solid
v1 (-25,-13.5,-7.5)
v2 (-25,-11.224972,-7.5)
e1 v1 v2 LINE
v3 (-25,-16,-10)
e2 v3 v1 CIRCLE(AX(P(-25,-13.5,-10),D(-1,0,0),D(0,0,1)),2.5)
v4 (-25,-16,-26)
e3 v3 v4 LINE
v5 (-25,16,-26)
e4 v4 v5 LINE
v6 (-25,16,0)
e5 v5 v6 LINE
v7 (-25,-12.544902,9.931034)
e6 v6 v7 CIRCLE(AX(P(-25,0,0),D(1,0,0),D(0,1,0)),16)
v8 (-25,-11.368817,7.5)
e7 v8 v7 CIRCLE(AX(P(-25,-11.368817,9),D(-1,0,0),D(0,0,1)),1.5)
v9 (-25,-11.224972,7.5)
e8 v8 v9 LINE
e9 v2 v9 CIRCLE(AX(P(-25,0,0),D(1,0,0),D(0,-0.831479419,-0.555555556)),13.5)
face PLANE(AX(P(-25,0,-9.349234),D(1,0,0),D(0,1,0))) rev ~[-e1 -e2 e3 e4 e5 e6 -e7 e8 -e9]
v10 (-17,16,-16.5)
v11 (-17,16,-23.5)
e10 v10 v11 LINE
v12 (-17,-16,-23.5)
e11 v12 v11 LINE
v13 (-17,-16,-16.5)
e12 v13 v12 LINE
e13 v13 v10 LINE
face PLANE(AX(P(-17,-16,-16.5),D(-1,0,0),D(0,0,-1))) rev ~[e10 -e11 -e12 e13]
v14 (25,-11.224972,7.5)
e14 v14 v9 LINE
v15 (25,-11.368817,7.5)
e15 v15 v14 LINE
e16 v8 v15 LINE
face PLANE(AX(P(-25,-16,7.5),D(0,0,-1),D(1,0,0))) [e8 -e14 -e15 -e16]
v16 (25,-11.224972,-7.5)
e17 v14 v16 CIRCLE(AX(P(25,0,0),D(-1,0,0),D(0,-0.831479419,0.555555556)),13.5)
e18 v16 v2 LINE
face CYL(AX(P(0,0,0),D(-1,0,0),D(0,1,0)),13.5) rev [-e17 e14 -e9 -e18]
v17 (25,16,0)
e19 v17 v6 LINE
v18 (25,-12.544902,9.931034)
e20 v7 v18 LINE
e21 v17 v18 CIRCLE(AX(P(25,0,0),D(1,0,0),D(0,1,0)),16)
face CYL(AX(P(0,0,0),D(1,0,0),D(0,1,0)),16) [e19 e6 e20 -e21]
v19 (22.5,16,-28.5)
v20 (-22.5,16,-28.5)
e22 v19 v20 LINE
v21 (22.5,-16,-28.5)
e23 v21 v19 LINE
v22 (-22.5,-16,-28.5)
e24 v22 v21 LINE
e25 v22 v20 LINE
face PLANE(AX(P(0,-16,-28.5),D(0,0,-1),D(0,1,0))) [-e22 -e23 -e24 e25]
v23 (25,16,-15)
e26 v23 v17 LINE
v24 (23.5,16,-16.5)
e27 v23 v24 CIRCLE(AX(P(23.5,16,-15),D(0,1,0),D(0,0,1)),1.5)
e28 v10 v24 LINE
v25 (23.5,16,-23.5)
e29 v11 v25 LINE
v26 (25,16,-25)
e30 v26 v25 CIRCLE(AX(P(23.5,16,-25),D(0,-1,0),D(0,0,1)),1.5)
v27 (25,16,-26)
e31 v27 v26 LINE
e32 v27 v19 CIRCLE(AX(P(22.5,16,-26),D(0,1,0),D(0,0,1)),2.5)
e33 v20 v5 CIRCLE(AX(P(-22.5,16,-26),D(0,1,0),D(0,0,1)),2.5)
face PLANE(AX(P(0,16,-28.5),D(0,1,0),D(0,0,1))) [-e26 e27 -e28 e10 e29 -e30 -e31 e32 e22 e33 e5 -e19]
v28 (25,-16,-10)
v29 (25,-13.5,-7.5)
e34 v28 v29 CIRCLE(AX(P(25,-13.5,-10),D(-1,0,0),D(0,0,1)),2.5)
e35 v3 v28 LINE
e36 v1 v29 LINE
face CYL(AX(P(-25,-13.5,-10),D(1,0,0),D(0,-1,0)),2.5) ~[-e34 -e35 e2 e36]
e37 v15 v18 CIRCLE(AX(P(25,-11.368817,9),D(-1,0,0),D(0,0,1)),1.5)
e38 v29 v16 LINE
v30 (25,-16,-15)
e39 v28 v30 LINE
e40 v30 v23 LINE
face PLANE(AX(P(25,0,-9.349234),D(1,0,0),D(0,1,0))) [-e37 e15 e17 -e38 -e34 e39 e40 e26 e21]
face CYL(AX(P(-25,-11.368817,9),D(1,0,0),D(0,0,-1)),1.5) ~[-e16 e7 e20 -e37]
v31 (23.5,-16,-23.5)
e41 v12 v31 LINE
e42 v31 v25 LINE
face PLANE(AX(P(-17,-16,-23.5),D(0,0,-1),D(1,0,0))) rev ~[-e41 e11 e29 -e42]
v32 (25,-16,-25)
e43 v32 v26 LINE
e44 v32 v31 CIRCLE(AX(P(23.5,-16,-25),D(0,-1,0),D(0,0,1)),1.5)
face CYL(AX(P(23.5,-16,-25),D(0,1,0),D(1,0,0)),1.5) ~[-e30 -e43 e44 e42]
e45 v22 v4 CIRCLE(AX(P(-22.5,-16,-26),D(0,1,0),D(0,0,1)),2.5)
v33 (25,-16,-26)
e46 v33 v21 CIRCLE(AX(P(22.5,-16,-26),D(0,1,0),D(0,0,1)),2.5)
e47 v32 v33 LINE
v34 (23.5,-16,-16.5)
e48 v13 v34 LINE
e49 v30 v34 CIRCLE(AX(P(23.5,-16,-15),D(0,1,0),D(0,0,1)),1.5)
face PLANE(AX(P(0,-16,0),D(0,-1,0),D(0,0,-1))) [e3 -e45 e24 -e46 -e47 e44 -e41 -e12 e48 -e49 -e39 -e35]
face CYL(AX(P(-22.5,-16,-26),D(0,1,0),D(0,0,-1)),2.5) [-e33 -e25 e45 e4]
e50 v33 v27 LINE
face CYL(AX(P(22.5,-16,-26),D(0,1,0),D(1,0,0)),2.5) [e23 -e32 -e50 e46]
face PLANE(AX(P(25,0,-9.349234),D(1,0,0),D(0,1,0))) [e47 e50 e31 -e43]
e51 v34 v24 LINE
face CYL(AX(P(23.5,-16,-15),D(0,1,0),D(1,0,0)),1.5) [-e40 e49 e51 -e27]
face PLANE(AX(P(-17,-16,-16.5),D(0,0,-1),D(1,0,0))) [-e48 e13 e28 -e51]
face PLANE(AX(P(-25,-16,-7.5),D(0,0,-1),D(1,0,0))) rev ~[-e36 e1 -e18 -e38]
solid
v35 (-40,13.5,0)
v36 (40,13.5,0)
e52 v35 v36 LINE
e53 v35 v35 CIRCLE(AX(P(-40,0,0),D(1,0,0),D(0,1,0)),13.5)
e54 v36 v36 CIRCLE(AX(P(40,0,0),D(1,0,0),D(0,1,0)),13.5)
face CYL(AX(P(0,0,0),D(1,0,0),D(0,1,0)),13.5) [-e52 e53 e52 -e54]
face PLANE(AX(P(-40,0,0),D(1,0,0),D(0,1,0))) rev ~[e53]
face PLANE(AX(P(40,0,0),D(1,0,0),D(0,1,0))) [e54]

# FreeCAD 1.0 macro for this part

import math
import FreeCAD as App
import Part
import Sketcher

V = App.Vector
Q = App.Units.Quantity


def edges_at(feature, points):
    """Names of the edges that pass closest to the given points."""
    edges = feature.Shape.Edges
    near = lambda p: min(range(len(edges)), key=lambda i: edges[i].distToShape(Part.Vertex(*p))[0])
    return sorted({f"Edge{near(p) + 1}" for p in points})

doc = App.newDocument("Part")
body = doc.addObject("PartDesign::Body", "Body")

# Sketch on YZ plane
sketch1 = body.newObject("Sketcher::SketchObject", "Sketch")
sketch1.AttachmentSupport = (doc.getObject("YZ_Plane"), [""])
sketch1.MapMode = "FlatFace"
sketch1.addGeometry(Part.Circle(V(0, 0, 0), V(0, 0, 1), 14), False)
sketch1.addConstraint([
    Sketcher.Constraint("Coincident", 0, 3, -1, 1),
    Sketcher.Constraint("Diameter", 0, Q("27 mm")),
])
pad1 = body.newObject("PartDesign::Pad", "Pad")
pad1.Profile = sketch1
pad1.Length = 80
pad1.Midplane = True
body2 = doc.addObject("PartDesign::Body", "Body001")

# Sketch on YZ plane
sketch2 = body2.newObject("Sketcher::SketchObject", "Sketch001")
sketch2.AttachmentSupport = (doc.getObject("YZ_Plane001"), [""])
sketch2.MapMode = "FlatFace"
sketch2.addGeometry([
    Part.ArcOfCircle(Part.Circle(V(0, 0, 0), V(0, 0, 1), 16), math.radians(0), math.radians(180)),  # 0
    Part.LineSegment(V(-16, 0, 0), V(-16, -28, 0)),  # 1
    Part.LineSegment(V(-16, -28, 0), V(16, -28, 0)),  # 2
    Part.LineSegment(V(16, -28, 0), V(16, 0, 0)),  # 3
    Part.Circle(V(0, 0, 0), V(0, 0, 1), 14),  # 4
], False)
sketch2.addConstraint([
    Sketcher.Constraint("Tangent", 0, 2, 1, 1),
    Sketcher.Constraint("Coincident", 1, 2, 2, 1),
    Sketcher.Constraint("Coincident", 2, 2, 3, 1),
    Sketcher.Constraint("Tangent", 3, 2, 0, 1),
    Sketcher.Constraint("Vertical", 1),
    Sketcher.Constraint("Horizontal", 2),
    Sketcher.Constraint("Vertical", 3),
    Sketcher.Constraint("Coincident", 0, 3, -1, 1),
    Sketcher.Constraint("Coincident", 4, 3, -1, 1),
    Sketcher.Constraint("Diameter", 4, Q("27 mm")),
    Sketcher.Constraint("Radius", 0, Q("16 mm")),
    Sketcher.Constraint("DistanceY", 1, 2, 1, 1, Q("28.5 mm")),
])
pad2 = body2.newObject("PartDesign::Pad", "Pad001")
pad2.Profile = sketch2
pad2.Length = 50
pad2.Midplane = True

# Sketch on XZ plane
sketch3 = body2.newObject("Sketcher::SketchObject", "Sketch002")
sketch3.AttachmentSupport = (doc.getObject("XZ_Plane001"), [""])
sketch3.MapMode = "FlatFace"
sketch3.AttachmentOffset = App.Placement(V(0, 0, 16), App.Rotation())
sketch3.addGeometry([
    Part.LineSegment(V(25, -16, 0), V(-17, -16, 0)),
    Part.LineSegment(V(-17, -16, 0), V(-17, -24, 0)),
    Part.LineSegment(V(-17, -24, 0), V(25, -24, 0)),
    Part.LineSegment(V(25, -24, 0), V(25, -16, 0)),
], False)
sketch3.addConstraint([
    Sketcher.Constraint("Coincident", 0, 2, 1, 1),
    Sketcher.Constraint("Coincident", 1, 2, 2, 1),
    Sketcher.Constraint("Coincident", 2, 2, 3, 1),
    Sketcher.Constraint("Coincident", 3, 2, 0, 1),
    Sketcher.Constraint("Horizontal", 0),
    Sketcher.Constraint("Vertical", 1),
    Sketcher.Constraint("Horizontal", 2),
    Sketcher.Constraint("Vertical", 3),
    Sketcher.Constraint("DistanceX", 0, 2, 0, 1, Q("42 mm")),
    Sketcher.Constraint("DistanceY", 1, 2, 1, 1, Q("7 mm")),
    Sketcher.Constraint("DistanceX", 0, 2, -1, 1, Q("17 mm")),
    Sketcher.Constraint("DistanceY", 0, 2, -1, 1, Q("16.5 mm")),
])
pocket1 = body2.newObject("PartDesign::Pocket", "Pocket")
pocket1.Profile = sketch3
pocket1.Length = 32

# Sketch on XZ plane
sketch4 = body2.newObject("Sketcher::SketchObject", "Sketch003")
sketch4.AttachmentSupport = (doc.getObject("XZ_Plane001"), [""])
sketch4.MapMode = "FlatFace"
sketch4.AttachmentOffset = App.Placement(V(0, 0, 16), App.Rotation())
sketch4.addGeometry([
    Part.LineSegment(V(25, 8, 0), V(-25, 8, 0)),
    Part.LineSegment(V(-25, 8, 0), V(-25, -8, 0)),
    Part.LineSegment(V(-25, -8, 0), V(25, -8, 0)),
    Part.LineSegment(V(25, -8, 0), V(25, 8, 0)),
], False)
sketch4.addConstraint([
    Sketcher.Constraint("Coincident", 0, 2, 1, 1),
    Sketcher.Constraint("Coincident", 1, 2, 2, 1),
    Sketcher.Constraint("Coincident", 2, 2, 3, 1),
    Sketcher.Constraint("Coincident", 3, 2, 0, 1),
    Sketcher.Constraint("Horizontal", 0),
    Sketcher.Constraint("Vertical", 1),
    Sketcher.Constraint("Horizontal", 2),
    Sketcher.Constraint("Vertical", 3),
    Sketcher.Constraint("Symmetric", 0, 2, 2, 2, -1, 1),
    Sketcher.Constraint("DistanceX", 0, 2, 0, 1, Q("50 mm")),
    Sketcher.Constraint("DistanceY", 1, 2, 1, 1, Q("15 mm")),
])
pocket2 = body2.newObject("PartDesign::Pocket", "Pocket001")
pocket2.Profile = sketch4
pocket2.Length = 5
doc.recompute()

fillet = body2.newObject("PartDesign::Fillet", "Fillet")
fillet.Base = (pocket2, edges_at(pocket2, [(0, -16, -7.5)]))
fillet.Radius = 2.5
doc.recompute()

fillet2 = body2.newObject("PartDesign::Fillet", "Fillet001")
fillet2.Base = (fillet, edges_at(fillet, [(0, -14.133, 7.5)]))
fillet2.Radius = 1.5
doc.recompute()

fillet3 = body2.newObject("PartDesign::Fillet", "Fillet002")
fillet3.Base = (fillet2, edges_at(fillet2, [(25, 0, -16.5), (25, 0, -23.5)]))
fillet3.Radius = 1.5
doc.recompute()

fillet4 = body2.newObject("PartDesign::Fillet", "Fillet003")
fillet4.Base = (fillet3, edges_at(fillet3, [(25, 0, -28.5), (-25, 0, -28.5)]))
fillet4.Radius = 2.5

doc.recompute()
